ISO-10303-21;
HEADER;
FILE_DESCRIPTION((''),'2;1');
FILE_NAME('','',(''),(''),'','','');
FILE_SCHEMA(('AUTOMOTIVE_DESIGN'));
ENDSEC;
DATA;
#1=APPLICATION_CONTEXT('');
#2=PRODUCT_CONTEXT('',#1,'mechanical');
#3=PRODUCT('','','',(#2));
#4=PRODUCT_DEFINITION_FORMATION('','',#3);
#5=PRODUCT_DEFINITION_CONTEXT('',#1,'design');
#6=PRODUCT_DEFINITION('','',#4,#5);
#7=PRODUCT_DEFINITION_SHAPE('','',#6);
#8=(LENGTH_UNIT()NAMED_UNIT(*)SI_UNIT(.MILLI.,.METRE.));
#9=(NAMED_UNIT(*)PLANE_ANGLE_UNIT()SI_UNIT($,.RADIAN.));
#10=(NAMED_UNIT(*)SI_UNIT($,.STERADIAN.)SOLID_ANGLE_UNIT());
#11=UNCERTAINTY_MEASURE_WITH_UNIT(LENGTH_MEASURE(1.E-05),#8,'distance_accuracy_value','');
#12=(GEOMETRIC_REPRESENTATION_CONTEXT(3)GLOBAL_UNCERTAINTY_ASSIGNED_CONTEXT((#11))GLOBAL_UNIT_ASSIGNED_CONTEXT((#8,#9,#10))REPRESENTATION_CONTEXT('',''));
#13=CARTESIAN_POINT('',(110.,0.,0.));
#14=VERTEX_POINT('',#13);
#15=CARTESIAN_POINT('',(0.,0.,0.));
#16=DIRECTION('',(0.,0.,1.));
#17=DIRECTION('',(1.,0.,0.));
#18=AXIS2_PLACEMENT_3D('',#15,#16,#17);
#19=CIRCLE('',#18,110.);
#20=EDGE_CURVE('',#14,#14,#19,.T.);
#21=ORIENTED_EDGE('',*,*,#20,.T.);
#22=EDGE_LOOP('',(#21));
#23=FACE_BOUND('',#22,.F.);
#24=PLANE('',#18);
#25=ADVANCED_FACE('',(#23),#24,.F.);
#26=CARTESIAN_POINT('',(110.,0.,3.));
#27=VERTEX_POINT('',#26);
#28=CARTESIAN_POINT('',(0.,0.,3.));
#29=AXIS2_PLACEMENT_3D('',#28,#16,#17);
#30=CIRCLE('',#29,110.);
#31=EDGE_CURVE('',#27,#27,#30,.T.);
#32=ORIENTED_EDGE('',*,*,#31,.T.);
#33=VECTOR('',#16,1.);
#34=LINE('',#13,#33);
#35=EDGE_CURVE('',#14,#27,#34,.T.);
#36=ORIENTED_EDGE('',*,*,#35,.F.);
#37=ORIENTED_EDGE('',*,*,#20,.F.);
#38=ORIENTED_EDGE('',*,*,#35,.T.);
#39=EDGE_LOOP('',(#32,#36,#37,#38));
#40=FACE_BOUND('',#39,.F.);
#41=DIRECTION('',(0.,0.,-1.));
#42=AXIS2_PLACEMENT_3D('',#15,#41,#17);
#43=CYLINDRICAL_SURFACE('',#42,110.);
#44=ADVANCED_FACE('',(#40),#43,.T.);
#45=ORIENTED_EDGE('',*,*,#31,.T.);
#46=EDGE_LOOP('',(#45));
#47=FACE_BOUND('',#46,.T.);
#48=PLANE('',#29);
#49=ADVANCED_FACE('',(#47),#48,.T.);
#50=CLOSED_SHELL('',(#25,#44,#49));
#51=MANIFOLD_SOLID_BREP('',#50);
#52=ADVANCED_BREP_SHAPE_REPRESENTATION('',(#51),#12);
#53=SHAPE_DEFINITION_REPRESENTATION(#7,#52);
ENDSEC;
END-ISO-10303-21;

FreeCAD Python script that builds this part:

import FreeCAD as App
import Part
import Sketcher

V = App.Vector
Q = App.Units.Quantity

doc = App.newDocument("Part")
body = doc.addObject("PartDesign::Body", "Body")

sketch1 = doc.addObject("Sketcher::SketchObject", "Sketch")
body.addObject(sketch1)
sketch1.AttachmentSupport = (doc.XY_Plane, [""])
sketch1.MapMode = "FlatFace"
sketch1.addGeometry(Part.Circle(V(0, 0, 0), V(0, 0, 1), 110), False)
sketch1.addConstraint(Sketcher.Constraint("Coincident", 0, 3, -1, 1))
sketch1.addConstraint(Sketcher.Constraint("Diameter", 0, Q("220 mm")))
pad1 = doc.addObject("PartDesign::Pad", "Pad")
body.addObject(pad1)
pad1.Profile = sketch1
pad1.Length = 3

doc.recompute()
